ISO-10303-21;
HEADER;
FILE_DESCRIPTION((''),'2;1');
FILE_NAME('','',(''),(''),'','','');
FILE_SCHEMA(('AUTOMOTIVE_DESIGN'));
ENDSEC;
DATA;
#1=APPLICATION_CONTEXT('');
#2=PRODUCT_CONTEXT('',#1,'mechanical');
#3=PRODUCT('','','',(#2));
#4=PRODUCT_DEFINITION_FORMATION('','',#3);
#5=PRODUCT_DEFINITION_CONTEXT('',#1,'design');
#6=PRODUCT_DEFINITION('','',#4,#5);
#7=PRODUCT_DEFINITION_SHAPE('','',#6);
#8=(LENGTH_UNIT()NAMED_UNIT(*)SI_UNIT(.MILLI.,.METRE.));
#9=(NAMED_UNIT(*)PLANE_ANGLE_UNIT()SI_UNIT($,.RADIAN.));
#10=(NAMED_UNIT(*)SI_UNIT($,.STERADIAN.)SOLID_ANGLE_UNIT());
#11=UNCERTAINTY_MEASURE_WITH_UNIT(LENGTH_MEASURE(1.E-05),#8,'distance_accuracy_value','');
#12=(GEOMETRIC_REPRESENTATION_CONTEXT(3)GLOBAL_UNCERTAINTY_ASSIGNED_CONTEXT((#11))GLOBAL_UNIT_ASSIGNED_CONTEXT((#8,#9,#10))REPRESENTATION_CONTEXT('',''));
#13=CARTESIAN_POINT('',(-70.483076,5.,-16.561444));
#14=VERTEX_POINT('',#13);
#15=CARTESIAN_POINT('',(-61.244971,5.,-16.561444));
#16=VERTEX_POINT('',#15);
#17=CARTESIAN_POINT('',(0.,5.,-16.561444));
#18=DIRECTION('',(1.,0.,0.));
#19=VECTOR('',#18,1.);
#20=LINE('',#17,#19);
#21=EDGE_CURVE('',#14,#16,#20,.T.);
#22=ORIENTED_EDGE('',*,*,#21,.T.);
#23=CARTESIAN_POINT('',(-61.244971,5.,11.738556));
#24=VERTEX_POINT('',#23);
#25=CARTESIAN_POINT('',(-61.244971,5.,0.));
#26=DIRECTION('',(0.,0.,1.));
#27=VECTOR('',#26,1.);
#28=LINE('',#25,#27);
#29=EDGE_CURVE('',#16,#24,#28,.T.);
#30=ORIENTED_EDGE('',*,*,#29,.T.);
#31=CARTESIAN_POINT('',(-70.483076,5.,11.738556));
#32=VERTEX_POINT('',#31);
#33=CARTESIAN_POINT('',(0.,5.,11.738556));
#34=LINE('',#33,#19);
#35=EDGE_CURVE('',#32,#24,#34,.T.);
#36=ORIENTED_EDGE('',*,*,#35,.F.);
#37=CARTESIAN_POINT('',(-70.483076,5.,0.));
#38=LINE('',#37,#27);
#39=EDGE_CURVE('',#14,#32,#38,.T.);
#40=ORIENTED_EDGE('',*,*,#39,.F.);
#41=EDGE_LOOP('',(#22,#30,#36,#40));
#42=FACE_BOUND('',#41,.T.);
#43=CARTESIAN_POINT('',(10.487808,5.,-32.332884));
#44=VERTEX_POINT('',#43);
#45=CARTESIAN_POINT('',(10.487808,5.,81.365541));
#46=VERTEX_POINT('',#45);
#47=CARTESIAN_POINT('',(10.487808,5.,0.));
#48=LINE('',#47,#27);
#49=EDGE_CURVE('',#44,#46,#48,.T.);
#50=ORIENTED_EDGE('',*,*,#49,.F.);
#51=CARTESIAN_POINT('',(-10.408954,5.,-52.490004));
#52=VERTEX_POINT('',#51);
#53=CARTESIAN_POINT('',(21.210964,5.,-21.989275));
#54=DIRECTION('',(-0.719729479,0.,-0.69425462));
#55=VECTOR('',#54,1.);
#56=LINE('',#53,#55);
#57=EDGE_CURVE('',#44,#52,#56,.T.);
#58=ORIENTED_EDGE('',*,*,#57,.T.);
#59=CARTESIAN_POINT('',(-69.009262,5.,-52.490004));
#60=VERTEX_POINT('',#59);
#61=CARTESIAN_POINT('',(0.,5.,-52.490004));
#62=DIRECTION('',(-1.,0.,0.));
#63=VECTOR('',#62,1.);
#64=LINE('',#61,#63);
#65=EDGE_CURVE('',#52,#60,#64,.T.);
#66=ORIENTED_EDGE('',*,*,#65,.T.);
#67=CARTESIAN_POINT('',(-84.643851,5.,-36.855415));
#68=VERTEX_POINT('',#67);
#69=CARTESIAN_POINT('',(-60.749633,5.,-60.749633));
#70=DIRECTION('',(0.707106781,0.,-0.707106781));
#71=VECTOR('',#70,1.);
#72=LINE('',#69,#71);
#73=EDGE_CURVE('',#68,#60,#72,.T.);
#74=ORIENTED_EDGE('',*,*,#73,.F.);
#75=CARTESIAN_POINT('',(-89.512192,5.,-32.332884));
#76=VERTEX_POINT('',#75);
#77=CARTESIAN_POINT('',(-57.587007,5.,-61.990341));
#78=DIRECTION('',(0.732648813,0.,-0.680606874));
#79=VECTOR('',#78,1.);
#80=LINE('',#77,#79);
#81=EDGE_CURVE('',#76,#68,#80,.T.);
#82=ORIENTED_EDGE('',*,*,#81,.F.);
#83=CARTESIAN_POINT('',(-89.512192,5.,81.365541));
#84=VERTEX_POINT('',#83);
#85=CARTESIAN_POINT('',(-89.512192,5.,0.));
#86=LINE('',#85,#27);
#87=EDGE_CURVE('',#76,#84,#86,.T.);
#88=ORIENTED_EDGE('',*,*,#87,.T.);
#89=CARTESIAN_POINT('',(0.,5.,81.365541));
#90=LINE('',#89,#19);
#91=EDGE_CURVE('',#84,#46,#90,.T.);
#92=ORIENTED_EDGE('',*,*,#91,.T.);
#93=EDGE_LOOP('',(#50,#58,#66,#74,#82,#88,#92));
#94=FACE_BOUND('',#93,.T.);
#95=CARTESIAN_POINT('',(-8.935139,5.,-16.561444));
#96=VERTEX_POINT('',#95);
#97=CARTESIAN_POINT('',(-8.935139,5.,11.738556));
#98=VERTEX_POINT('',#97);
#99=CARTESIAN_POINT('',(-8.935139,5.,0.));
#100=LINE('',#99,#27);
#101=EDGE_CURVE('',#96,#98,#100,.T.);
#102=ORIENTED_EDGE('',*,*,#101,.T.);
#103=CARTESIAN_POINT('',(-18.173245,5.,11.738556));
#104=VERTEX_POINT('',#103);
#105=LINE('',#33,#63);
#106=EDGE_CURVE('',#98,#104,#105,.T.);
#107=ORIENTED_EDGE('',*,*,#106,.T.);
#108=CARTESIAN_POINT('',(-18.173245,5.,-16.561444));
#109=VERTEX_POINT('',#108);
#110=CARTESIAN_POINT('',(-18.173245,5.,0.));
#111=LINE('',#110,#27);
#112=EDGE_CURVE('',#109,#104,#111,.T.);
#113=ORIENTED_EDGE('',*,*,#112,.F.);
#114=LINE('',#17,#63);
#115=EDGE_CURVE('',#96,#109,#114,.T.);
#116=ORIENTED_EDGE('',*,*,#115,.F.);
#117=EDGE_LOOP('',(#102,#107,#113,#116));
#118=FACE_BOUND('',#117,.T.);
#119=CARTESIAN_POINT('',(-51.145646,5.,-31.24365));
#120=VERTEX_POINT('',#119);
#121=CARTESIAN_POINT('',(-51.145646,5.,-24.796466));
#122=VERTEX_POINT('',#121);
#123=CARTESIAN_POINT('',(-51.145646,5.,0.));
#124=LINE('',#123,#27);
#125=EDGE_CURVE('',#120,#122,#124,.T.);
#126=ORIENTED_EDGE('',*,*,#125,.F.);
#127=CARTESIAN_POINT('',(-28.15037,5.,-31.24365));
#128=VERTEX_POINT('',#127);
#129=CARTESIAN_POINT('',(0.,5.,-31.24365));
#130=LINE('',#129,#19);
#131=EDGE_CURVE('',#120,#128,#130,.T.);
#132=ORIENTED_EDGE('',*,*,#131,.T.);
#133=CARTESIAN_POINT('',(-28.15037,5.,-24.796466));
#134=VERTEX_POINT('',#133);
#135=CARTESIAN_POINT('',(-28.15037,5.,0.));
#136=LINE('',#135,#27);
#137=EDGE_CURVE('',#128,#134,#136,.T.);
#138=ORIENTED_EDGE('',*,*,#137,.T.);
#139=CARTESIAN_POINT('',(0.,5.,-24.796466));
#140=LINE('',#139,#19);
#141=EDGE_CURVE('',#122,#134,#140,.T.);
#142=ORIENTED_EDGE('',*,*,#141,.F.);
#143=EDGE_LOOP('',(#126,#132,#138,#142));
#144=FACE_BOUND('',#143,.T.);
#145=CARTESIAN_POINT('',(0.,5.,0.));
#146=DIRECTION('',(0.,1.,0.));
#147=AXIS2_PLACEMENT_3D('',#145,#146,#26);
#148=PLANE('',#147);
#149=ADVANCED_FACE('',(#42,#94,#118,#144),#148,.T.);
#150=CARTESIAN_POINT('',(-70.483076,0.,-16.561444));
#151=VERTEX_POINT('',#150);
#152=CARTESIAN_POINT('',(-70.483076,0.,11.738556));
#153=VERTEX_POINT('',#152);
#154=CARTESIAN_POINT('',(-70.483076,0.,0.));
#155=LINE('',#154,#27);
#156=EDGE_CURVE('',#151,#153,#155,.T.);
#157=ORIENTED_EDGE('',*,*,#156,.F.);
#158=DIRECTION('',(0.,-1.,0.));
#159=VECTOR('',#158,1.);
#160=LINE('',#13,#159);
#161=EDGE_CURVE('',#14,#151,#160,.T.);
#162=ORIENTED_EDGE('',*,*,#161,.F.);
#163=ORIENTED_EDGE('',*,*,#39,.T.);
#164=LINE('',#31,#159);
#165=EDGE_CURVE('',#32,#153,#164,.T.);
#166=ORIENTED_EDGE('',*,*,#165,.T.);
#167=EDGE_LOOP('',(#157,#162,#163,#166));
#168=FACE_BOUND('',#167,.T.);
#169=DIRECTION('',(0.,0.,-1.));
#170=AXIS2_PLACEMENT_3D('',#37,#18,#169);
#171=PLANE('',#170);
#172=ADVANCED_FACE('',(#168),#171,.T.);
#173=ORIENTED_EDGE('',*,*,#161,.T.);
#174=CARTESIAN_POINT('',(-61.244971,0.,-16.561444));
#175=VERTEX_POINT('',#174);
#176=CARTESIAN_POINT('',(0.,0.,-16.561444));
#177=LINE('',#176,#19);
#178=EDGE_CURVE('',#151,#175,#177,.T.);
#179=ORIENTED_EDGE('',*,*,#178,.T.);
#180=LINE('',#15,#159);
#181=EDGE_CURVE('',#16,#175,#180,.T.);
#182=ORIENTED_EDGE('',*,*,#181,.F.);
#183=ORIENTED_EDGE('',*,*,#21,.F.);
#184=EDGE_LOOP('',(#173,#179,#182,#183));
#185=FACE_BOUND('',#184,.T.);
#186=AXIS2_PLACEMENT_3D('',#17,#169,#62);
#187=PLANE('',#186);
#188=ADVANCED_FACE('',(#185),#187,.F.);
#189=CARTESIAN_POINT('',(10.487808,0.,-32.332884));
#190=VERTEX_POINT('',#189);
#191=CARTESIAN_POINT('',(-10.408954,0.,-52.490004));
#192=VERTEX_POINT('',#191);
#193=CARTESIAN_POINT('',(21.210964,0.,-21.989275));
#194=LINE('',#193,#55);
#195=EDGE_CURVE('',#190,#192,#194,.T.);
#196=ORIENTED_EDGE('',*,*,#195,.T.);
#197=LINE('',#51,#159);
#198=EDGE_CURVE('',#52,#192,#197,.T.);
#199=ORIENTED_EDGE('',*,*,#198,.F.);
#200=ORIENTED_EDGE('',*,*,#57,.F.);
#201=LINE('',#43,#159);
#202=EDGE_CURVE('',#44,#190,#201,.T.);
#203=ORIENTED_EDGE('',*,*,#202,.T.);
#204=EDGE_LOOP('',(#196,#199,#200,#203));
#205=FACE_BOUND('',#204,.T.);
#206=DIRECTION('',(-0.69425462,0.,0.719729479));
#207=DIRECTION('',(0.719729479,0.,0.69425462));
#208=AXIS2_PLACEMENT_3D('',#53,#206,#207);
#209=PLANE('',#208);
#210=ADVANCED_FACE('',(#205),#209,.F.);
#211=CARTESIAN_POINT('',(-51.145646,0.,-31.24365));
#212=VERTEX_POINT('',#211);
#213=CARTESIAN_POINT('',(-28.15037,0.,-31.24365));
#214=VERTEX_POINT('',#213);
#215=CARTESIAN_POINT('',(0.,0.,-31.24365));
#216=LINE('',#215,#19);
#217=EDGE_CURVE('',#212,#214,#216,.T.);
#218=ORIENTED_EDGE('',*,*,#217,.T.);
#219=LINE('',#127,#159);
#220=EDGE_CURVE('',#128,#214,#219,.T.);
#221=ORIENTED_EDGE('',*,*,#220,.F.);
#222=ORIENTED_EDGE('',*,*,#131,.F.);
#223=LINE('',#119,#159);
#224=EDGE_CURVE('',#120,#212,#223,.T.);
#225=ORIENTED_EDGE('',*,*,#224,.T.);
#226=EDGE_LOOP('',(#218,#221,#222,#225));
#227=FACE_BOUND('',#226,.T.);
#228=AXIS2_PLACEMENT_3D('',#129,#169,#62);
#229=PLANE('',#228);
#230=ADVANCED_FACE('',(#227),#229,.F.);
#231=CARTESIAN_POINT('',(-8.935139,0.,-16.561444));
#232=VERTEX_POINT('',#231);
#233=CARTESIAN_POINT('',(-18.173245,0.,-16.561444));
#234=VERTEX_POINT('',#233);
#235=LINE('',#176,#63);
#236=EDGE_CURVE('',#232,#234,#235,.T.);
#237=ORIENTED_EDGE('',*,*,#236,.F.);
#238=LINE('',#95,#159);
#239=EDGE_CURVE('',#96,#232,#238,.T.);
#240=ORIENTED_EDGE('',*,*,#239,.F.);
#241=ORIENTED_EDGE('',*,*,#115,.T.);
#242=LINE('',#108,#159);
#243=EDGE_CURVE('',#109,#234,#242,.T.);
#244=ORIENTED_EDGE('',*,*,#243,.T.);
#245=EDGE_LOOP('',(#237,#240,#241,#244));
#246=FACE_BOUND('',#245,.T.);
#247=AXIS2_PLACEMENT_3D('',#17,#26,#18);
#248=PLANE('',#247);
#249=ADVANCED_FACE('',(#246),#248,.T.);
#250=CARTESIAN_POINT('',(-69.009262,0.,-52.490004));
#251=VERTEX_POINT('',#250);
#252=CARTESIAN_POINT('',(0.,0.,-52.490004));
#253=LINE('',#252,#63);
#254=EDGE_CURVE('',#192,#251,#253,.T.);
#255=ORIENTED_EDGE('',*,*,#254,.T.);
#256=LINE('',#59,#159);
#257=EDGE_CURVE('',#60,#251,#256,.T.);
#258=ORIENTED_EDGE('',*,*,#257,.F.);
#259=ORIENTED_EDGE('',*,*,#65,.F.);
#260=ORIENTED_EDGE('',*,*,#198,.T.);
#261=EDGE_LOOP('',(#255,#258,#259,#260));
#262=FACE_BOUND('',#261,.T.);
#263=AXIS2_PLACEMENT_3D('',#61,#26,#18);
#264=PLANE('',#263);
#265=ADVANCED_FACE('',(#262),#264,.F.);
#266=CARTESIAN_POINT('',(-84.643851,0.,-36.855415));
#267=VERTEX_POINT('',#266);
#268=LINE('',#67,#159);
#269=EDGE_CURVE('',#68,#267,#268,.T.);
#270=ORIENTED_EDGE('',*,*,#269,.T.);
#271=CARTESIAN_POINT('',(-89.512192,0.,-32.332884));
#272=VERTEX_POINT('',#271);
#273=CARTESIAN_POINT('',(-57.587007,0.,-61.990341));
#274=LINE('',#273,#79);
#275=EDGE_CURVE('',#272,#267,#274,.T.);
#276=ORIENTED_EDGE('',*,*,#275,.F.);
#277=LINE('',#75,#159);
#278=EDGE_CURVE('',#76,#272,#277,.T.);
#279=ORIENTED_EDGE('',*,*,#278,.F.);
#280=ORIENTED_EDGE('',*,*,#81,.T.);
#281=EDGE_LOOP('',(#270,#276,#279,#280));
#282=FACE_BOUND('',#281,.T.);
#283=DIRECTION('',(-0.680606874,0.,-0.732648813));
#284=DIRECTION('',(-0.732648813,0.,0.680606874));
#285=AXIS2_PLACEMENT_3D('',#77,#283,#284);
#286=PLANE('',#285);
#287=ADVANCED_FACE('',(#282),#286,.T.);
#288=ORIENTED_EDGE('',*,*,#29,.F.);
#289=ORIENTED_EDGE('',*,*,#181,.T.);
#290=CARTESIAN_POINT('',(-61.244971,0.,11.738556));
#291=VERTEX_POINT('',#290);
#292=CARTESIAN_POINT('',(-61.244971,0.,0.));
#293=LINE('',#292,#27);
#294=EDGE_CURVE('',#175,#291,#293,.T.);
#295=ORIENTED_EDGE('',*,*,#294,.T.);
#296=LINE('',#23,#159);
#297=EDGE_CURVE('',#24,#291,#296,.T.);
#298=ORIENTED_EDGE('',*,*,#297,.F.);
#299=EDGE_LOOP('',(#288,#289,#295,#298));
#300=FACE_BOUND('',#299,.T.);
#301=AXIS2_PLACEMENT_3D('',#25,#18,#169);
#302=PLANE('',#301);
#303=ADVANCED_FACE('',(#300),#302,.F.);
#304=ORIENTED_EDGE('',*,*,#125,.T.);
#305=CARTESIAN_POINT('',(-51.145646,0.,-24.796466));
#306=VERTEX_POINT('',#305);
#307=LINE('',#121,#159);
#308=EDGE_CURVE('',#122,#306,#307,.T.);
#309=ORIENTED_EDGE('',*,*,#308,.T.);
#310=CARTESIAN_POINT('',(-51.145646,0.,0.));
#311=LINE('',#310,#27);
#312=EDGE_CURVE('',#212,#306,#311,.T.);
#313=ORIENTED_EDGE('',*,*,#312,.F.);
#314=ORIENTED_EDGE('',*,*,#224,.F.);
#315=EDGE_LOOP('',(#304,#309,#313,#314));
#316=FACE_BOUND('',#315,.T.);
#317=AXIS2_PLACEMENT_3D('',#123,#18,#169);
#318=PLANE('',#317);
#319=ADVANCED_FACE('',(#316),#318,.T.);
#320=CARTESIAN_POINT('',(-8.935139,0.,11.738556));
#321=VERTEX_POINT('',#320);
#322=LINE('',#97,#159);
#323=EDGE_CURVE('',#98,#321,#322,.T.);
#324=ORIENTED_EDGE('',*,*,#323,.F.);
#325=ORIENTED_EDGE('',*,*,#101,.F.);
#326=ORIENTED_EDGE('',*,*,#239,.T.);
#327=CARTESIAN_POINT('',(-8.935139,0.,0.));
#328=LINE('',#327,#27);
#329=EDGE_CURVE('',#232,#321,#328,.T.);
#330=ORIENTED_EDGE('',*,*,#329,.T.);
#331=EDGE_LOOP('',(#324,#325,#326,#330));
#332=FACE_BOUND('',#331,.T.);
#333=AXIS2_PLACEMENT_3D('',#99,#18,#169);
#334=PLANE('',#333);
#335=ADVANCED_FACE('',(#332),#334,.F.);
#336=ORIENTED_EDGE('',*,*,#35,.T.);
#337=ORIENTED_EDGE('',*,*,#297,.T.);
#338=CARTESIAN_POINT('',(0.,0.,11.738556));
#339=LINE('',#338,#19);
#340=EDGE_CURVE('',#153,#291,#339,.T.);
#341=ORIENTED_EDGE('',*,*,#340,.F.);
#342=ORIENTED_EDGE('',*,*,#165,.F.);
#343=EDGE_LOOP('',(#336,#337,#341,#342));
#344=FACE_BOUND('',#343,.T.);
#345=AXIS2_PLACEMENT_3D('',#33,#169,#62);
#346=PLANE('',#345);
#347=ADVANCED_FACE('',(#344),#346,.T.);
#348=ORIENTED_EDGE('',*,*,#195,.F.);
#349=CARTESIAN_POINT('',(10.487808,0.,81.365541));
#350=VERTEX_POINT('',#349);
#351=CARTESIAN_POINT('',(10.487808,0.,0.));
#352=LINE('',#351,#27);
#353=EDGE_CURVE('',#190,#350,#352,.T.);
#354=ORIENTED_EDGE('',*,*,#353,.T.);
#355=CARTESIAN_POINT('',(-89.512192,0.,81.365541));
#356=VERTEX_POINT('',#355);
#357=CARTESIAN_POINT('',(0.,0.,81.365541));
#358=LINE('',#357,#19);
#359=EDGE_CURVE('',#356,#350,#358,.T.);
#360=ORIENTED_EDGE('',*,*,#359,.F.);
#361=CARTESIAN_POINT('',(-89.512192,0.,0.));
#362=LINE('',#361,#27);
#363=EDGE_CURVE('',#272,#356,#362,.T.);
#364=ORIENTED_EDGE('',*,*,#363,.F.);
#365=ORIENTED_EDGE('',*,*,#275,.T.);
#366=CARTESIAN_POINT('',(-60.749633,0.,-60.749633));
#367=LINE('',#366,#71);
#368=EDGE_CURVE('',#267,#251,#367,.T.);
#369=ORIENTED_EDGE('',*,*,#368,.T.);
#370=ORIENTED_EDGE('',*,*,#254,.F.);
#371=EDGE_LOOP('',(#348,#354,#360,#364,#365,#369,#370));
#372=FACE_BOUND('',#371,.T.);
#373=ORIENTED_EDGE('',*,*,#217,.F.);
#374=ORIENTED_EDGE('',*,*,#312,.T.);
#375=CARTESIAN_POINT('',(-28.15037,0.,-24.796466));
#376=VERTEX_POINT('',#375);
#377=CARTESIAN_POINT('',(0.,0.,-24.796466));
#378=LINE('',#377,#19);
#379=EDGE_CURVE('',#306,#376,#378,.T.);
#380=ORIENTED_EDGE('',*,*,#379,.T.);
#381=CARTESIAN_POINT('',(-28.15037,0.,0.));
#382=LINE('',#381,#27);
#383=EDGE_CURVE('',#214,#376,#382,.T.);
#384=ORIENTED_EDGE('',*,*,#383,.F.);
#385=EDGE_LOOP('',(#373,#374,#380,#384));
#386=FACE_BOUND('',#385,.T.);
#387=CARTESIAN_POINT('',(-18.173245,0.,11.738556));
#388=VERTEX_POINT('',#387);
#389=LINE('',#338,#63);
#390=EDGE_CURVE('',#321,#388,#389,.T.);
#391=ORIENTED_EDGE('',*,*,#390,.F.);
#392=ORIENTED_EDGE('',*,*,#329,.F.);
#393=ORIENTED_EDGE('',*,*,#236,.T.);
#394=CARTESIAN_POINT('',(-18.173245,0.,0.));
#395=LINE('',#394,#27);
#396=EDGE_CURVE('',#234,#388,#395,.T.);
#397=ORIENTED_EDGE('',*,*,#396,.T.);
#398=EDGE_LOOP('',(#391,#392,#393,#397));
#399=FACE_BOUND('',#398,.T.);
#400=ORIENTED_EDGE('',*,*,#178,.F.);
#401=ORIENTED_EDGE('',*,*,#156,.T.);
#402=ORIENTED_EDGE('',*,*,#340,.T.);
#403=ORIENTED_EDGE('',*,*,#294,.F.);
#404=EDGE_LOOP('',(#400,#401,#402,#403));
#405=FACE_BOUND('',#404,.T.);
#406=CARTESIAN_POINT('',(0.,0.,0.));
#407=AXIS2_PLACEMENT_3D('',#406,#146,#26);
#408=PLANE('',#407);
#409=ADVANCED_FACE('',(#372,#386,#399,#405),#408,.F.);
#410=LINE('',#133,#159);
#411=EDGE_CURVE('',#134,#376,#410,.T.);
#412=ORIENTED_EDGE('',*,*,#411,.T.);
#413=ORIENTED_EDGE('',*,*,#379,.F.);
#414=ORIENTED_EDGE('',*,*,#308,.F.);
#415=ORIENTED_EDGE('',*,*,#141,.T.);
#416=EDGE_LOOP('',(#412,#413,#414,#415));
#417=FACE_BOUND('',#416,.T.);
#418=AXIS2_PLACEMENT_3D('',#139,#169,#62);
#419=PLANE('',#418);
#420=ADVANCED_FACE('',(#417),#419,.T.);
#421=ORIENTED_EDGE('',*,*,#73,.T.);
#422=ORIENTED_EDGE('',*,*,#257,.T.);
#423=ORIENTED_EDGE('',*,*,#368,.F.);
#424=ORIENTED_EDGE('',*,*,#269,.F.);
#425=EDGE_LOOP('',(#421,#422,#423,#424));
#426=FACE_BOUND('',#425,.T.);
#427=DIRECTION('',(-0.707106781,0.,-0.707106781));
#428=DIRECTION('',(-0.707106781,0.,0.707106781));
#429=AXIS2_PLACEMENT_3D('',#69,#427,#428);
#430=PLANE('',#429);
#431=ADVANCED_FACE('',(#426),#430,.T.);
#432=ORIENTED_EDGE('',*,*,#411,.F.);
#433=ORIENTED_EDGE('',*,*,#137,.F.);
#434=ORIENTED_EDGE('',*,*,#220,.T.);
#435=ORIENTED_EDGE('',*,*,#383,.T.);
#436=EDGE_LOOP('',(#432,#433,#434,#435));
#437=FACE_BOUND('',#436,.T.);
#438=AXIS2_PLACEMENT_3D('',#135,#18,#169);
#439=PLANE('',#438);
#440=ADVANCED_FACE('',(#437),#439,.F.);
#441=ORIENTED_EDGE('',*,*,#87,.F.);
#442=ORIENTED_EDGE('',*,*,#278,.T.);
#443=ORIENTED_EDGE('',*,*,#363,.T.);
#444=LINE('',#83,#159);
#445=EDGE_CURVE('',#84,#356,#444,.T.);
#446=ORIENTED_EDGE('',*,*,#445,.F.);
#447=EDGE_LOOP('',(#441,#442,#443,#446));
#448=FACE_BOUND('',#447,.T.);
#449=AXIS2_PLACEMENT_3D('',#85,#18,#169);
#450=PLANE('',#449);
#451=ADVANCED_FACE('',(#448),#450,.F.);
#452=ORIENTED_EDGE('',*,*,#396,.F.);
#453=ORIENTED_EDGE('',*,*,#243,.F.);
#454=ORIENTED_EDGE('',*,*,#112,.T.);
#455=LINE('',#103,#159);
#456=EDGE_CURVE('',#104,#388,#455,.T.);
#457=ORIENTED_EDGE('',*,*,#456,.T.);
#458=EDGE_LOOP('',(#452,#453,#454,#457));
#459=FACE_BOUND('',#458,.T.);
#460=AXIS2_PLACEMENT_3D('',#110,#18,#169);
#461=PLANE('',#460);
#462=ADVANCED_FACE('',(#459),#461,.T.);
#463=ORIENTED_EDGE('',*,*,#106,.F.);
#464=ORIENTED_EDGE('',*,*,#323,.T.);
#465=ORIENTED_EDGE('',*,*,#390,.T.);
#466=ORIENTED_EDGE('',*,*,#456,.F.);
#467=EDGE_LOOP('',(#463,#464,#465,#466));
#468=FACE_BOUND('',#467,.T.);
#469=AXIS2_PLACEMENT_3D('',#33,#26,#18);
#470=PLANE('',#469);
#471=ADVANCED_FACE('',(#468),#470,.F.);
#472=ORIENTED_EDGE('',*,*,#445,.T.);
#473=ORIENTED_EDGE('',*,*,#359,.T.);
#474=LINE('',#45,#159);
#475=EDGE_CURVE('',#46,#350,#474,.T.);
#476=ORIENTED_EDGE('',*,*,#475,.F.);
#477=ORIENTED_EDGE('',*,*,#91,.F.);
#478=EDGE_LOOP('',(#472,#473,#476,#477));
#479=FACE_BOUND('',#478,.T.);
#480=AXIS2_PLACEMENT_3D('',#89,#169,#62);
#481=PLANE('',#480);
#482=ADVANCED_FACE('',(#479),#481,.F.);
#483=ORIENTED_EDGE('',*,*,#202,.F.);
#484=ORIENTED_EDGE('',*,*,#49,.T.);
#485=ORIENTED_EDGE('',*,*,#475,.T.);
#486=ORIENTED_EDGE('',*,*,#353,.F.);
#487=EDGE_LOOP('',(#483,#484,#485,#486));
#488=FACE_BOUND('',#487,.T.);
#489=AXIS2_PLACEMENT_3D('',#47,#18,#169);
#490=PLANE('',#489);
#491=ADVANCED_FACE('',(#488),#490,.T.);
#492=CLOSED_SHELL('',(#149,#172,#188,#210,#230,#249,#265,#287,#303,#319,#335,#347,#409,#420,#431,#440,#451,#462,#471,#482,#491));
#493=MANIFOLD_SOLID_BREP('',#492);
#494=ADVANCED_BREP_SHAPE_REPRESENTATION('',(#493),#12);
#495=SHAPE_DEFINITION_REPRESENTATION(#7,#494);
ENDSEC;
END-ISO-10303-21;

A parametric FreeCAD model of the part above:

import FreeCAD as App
import Part
import Sketcher
from FreeCAD import Vector
Q = App.Units.Quantity


def add_polygon(sketch, points):
    """Adds a closed chain of lines whose ends are joined by coincident constraints."""
    first, n = sketch.GeometryCount, len(points)
    for a, b in zip(points, points[1:] + points[:1]):
        sketch.addGeometry(Part.LineSegment(App.Vector(*a, 0), App.Vector(*b, 0)), False)
    for i in range(n):
        sketch.addConstraint(Sketcher.Constraint("Coincident", first + i, 2, first + (i + 1) % n, 1))

doc = App.newDocument("Part")
params = doc.addObject("Spreadsheet::Sheet", "Params")
for row, (alias, value) in enumerate([
    ("sketch1_width", "100 mm"),
    ("sketch1_height", "28.3 mm"),
    ("pad1_length", "5 mm"),
], start=1):
    params.set(f"A{row}", alias)
    params.set(f"B{row}", "=" + value)
    params.setAlias(f"B{row}", alias)

body = doc.addObject("PartDesign::Body", "Body")

sketch1 = body.newObject("Sketcher::SketchObject", "Sketch")
sketch1.AttachmentSupport = (doc.getObject("XZ_Plane"), [""])
sketch1.MapMode = "FlatFace"
add_polygon(sketch1, [(-84.643851, -36.855415), (-89.512192, -32.332884), (-89.512192, 81.365541), (10.487808, 81.365541), (10.487808, -32.332884), (-10.408954, -52.490004), (-69.009262, -52.490004)])
add_polygon(sketch1, [(-61.244971, 11.738556), (-70.483076, 11.738556), (-70.483076, -16.561444), (-61.244971, -16.561444)])
add_polygon(sketch1, [(-8.935139, 11.738556), (-18.173245, 11.738556), (-18.173245, -16.561444), (-8.935139, -16.561444)])
add_polygon(sketch1, [(-28.15037, -24.796466), (-51.145646, -24.796466), (-51.145646, -31.24365), (-28.15037, -31.24365)])
sketch1.addConstraint([
    Sketcher.Constraint("Vertical", 1),
    Sketcher.Constraint("Horizontal", 2),
    Sketcher.Constraint("Vertical", 3),
    Sketcher.Constraint("Horizontal", 5),
    Sketcher.Constraint("Horizontal", 7),
    Sketcher.Constraint("Vertical", 8),
    Sketcher.Constraint("Horizontal", 9),
    Sketcher.Constraint("Vertical", 10),
    Sketcher.Constraint("Horizontal", 11),
    Sketcher.Constraint("Vertical", 12),
    Sketcher.Constraint("Horizontal", 13),
    Sketcher.Constraint("Vertical", 14),
    Sketcher.Constraint("Horizontal", 15),
    Sketcher.Constraint("Vertical", 16),
    Sketcher.Constraint("Horizontal", 17),
    Sketcher.Constraint("Vertical", 18),
    Sketcher.Constraint("Horizontal", 0, 2, 3, 2),
    Sketcher.Constraint("Horizontal", 10, 2, 11, 2),
    Sketcher.Constraint("Horizontal", 9, 2, 12, 2),
    Sketcher.Constraint("Equal", 9, 11),
    Sketcher.Constraint("DistanceX", 2, 1, 2, 2, 100.0),
    Sketcher.Constraint("Angle", 6, Q("135 deg")),
    Sketcher.Constraint("DistanceY", 8, 2, 8, 1, 28.3),
    Sketcher.Constraint("DistanceX", 15, 2, 12, 2, 32.972401),
    Sketcher.Constraint("Distance", 0, 6.64485),
    Sketcher.Constraint("Distance", 4, 29.034189),
    Sketcher.Constraint("Distance", 6, 22.110648),
    Sketcher.Constraint("DistanceX", 5, 2, 5, 1, 58.600308),
    Sketcher.Constraint("DistanceX", 7, 2, 7, 1, 9.238106),
    Sketcher.Constraint("DistanceX", 15, 2, 15, 1, 22.995276),
    Sketcher.Constraint("DistanceY", 1, 1, 1, 2, 113.698425),
    Sketcher.Constraint("DistanceY", 16, 2, 16, 1, 6.447184),
    Sketcher.Constraint("DistanceY", -1, 1, 1, 2, 81.365541),
    Sketcher.Constraint("DistanceX", 5, 2, -1, 1, 69.009262),
    Sketcher.Constraint("DistanceX", 9, 2, -1, 1, 61.244971),
    Sketcher.Constraint("DistanceX", 13, 2, -1, 1, 8.935139),
    Sketcher.Constraint("DistanceY", 16, 2, -1, 1, 31.24365),
    Sketcher.Constraint("DistanceY", 0, 2, 7, 2, 44.07144),
])
sketch1.setExpression("Constraints[39]", "Params.sketch1_width")
sketch1.setExpression("Constraints[41]", "Params.sketch1_height")
pad1 = body.newObject("PartDesign::Pad", "Pad")
pad1.Profile = sketch1
pad1.setExpression("Length", "Params.pad1_length")
pad1.Reversed = True

doc.recompute()
